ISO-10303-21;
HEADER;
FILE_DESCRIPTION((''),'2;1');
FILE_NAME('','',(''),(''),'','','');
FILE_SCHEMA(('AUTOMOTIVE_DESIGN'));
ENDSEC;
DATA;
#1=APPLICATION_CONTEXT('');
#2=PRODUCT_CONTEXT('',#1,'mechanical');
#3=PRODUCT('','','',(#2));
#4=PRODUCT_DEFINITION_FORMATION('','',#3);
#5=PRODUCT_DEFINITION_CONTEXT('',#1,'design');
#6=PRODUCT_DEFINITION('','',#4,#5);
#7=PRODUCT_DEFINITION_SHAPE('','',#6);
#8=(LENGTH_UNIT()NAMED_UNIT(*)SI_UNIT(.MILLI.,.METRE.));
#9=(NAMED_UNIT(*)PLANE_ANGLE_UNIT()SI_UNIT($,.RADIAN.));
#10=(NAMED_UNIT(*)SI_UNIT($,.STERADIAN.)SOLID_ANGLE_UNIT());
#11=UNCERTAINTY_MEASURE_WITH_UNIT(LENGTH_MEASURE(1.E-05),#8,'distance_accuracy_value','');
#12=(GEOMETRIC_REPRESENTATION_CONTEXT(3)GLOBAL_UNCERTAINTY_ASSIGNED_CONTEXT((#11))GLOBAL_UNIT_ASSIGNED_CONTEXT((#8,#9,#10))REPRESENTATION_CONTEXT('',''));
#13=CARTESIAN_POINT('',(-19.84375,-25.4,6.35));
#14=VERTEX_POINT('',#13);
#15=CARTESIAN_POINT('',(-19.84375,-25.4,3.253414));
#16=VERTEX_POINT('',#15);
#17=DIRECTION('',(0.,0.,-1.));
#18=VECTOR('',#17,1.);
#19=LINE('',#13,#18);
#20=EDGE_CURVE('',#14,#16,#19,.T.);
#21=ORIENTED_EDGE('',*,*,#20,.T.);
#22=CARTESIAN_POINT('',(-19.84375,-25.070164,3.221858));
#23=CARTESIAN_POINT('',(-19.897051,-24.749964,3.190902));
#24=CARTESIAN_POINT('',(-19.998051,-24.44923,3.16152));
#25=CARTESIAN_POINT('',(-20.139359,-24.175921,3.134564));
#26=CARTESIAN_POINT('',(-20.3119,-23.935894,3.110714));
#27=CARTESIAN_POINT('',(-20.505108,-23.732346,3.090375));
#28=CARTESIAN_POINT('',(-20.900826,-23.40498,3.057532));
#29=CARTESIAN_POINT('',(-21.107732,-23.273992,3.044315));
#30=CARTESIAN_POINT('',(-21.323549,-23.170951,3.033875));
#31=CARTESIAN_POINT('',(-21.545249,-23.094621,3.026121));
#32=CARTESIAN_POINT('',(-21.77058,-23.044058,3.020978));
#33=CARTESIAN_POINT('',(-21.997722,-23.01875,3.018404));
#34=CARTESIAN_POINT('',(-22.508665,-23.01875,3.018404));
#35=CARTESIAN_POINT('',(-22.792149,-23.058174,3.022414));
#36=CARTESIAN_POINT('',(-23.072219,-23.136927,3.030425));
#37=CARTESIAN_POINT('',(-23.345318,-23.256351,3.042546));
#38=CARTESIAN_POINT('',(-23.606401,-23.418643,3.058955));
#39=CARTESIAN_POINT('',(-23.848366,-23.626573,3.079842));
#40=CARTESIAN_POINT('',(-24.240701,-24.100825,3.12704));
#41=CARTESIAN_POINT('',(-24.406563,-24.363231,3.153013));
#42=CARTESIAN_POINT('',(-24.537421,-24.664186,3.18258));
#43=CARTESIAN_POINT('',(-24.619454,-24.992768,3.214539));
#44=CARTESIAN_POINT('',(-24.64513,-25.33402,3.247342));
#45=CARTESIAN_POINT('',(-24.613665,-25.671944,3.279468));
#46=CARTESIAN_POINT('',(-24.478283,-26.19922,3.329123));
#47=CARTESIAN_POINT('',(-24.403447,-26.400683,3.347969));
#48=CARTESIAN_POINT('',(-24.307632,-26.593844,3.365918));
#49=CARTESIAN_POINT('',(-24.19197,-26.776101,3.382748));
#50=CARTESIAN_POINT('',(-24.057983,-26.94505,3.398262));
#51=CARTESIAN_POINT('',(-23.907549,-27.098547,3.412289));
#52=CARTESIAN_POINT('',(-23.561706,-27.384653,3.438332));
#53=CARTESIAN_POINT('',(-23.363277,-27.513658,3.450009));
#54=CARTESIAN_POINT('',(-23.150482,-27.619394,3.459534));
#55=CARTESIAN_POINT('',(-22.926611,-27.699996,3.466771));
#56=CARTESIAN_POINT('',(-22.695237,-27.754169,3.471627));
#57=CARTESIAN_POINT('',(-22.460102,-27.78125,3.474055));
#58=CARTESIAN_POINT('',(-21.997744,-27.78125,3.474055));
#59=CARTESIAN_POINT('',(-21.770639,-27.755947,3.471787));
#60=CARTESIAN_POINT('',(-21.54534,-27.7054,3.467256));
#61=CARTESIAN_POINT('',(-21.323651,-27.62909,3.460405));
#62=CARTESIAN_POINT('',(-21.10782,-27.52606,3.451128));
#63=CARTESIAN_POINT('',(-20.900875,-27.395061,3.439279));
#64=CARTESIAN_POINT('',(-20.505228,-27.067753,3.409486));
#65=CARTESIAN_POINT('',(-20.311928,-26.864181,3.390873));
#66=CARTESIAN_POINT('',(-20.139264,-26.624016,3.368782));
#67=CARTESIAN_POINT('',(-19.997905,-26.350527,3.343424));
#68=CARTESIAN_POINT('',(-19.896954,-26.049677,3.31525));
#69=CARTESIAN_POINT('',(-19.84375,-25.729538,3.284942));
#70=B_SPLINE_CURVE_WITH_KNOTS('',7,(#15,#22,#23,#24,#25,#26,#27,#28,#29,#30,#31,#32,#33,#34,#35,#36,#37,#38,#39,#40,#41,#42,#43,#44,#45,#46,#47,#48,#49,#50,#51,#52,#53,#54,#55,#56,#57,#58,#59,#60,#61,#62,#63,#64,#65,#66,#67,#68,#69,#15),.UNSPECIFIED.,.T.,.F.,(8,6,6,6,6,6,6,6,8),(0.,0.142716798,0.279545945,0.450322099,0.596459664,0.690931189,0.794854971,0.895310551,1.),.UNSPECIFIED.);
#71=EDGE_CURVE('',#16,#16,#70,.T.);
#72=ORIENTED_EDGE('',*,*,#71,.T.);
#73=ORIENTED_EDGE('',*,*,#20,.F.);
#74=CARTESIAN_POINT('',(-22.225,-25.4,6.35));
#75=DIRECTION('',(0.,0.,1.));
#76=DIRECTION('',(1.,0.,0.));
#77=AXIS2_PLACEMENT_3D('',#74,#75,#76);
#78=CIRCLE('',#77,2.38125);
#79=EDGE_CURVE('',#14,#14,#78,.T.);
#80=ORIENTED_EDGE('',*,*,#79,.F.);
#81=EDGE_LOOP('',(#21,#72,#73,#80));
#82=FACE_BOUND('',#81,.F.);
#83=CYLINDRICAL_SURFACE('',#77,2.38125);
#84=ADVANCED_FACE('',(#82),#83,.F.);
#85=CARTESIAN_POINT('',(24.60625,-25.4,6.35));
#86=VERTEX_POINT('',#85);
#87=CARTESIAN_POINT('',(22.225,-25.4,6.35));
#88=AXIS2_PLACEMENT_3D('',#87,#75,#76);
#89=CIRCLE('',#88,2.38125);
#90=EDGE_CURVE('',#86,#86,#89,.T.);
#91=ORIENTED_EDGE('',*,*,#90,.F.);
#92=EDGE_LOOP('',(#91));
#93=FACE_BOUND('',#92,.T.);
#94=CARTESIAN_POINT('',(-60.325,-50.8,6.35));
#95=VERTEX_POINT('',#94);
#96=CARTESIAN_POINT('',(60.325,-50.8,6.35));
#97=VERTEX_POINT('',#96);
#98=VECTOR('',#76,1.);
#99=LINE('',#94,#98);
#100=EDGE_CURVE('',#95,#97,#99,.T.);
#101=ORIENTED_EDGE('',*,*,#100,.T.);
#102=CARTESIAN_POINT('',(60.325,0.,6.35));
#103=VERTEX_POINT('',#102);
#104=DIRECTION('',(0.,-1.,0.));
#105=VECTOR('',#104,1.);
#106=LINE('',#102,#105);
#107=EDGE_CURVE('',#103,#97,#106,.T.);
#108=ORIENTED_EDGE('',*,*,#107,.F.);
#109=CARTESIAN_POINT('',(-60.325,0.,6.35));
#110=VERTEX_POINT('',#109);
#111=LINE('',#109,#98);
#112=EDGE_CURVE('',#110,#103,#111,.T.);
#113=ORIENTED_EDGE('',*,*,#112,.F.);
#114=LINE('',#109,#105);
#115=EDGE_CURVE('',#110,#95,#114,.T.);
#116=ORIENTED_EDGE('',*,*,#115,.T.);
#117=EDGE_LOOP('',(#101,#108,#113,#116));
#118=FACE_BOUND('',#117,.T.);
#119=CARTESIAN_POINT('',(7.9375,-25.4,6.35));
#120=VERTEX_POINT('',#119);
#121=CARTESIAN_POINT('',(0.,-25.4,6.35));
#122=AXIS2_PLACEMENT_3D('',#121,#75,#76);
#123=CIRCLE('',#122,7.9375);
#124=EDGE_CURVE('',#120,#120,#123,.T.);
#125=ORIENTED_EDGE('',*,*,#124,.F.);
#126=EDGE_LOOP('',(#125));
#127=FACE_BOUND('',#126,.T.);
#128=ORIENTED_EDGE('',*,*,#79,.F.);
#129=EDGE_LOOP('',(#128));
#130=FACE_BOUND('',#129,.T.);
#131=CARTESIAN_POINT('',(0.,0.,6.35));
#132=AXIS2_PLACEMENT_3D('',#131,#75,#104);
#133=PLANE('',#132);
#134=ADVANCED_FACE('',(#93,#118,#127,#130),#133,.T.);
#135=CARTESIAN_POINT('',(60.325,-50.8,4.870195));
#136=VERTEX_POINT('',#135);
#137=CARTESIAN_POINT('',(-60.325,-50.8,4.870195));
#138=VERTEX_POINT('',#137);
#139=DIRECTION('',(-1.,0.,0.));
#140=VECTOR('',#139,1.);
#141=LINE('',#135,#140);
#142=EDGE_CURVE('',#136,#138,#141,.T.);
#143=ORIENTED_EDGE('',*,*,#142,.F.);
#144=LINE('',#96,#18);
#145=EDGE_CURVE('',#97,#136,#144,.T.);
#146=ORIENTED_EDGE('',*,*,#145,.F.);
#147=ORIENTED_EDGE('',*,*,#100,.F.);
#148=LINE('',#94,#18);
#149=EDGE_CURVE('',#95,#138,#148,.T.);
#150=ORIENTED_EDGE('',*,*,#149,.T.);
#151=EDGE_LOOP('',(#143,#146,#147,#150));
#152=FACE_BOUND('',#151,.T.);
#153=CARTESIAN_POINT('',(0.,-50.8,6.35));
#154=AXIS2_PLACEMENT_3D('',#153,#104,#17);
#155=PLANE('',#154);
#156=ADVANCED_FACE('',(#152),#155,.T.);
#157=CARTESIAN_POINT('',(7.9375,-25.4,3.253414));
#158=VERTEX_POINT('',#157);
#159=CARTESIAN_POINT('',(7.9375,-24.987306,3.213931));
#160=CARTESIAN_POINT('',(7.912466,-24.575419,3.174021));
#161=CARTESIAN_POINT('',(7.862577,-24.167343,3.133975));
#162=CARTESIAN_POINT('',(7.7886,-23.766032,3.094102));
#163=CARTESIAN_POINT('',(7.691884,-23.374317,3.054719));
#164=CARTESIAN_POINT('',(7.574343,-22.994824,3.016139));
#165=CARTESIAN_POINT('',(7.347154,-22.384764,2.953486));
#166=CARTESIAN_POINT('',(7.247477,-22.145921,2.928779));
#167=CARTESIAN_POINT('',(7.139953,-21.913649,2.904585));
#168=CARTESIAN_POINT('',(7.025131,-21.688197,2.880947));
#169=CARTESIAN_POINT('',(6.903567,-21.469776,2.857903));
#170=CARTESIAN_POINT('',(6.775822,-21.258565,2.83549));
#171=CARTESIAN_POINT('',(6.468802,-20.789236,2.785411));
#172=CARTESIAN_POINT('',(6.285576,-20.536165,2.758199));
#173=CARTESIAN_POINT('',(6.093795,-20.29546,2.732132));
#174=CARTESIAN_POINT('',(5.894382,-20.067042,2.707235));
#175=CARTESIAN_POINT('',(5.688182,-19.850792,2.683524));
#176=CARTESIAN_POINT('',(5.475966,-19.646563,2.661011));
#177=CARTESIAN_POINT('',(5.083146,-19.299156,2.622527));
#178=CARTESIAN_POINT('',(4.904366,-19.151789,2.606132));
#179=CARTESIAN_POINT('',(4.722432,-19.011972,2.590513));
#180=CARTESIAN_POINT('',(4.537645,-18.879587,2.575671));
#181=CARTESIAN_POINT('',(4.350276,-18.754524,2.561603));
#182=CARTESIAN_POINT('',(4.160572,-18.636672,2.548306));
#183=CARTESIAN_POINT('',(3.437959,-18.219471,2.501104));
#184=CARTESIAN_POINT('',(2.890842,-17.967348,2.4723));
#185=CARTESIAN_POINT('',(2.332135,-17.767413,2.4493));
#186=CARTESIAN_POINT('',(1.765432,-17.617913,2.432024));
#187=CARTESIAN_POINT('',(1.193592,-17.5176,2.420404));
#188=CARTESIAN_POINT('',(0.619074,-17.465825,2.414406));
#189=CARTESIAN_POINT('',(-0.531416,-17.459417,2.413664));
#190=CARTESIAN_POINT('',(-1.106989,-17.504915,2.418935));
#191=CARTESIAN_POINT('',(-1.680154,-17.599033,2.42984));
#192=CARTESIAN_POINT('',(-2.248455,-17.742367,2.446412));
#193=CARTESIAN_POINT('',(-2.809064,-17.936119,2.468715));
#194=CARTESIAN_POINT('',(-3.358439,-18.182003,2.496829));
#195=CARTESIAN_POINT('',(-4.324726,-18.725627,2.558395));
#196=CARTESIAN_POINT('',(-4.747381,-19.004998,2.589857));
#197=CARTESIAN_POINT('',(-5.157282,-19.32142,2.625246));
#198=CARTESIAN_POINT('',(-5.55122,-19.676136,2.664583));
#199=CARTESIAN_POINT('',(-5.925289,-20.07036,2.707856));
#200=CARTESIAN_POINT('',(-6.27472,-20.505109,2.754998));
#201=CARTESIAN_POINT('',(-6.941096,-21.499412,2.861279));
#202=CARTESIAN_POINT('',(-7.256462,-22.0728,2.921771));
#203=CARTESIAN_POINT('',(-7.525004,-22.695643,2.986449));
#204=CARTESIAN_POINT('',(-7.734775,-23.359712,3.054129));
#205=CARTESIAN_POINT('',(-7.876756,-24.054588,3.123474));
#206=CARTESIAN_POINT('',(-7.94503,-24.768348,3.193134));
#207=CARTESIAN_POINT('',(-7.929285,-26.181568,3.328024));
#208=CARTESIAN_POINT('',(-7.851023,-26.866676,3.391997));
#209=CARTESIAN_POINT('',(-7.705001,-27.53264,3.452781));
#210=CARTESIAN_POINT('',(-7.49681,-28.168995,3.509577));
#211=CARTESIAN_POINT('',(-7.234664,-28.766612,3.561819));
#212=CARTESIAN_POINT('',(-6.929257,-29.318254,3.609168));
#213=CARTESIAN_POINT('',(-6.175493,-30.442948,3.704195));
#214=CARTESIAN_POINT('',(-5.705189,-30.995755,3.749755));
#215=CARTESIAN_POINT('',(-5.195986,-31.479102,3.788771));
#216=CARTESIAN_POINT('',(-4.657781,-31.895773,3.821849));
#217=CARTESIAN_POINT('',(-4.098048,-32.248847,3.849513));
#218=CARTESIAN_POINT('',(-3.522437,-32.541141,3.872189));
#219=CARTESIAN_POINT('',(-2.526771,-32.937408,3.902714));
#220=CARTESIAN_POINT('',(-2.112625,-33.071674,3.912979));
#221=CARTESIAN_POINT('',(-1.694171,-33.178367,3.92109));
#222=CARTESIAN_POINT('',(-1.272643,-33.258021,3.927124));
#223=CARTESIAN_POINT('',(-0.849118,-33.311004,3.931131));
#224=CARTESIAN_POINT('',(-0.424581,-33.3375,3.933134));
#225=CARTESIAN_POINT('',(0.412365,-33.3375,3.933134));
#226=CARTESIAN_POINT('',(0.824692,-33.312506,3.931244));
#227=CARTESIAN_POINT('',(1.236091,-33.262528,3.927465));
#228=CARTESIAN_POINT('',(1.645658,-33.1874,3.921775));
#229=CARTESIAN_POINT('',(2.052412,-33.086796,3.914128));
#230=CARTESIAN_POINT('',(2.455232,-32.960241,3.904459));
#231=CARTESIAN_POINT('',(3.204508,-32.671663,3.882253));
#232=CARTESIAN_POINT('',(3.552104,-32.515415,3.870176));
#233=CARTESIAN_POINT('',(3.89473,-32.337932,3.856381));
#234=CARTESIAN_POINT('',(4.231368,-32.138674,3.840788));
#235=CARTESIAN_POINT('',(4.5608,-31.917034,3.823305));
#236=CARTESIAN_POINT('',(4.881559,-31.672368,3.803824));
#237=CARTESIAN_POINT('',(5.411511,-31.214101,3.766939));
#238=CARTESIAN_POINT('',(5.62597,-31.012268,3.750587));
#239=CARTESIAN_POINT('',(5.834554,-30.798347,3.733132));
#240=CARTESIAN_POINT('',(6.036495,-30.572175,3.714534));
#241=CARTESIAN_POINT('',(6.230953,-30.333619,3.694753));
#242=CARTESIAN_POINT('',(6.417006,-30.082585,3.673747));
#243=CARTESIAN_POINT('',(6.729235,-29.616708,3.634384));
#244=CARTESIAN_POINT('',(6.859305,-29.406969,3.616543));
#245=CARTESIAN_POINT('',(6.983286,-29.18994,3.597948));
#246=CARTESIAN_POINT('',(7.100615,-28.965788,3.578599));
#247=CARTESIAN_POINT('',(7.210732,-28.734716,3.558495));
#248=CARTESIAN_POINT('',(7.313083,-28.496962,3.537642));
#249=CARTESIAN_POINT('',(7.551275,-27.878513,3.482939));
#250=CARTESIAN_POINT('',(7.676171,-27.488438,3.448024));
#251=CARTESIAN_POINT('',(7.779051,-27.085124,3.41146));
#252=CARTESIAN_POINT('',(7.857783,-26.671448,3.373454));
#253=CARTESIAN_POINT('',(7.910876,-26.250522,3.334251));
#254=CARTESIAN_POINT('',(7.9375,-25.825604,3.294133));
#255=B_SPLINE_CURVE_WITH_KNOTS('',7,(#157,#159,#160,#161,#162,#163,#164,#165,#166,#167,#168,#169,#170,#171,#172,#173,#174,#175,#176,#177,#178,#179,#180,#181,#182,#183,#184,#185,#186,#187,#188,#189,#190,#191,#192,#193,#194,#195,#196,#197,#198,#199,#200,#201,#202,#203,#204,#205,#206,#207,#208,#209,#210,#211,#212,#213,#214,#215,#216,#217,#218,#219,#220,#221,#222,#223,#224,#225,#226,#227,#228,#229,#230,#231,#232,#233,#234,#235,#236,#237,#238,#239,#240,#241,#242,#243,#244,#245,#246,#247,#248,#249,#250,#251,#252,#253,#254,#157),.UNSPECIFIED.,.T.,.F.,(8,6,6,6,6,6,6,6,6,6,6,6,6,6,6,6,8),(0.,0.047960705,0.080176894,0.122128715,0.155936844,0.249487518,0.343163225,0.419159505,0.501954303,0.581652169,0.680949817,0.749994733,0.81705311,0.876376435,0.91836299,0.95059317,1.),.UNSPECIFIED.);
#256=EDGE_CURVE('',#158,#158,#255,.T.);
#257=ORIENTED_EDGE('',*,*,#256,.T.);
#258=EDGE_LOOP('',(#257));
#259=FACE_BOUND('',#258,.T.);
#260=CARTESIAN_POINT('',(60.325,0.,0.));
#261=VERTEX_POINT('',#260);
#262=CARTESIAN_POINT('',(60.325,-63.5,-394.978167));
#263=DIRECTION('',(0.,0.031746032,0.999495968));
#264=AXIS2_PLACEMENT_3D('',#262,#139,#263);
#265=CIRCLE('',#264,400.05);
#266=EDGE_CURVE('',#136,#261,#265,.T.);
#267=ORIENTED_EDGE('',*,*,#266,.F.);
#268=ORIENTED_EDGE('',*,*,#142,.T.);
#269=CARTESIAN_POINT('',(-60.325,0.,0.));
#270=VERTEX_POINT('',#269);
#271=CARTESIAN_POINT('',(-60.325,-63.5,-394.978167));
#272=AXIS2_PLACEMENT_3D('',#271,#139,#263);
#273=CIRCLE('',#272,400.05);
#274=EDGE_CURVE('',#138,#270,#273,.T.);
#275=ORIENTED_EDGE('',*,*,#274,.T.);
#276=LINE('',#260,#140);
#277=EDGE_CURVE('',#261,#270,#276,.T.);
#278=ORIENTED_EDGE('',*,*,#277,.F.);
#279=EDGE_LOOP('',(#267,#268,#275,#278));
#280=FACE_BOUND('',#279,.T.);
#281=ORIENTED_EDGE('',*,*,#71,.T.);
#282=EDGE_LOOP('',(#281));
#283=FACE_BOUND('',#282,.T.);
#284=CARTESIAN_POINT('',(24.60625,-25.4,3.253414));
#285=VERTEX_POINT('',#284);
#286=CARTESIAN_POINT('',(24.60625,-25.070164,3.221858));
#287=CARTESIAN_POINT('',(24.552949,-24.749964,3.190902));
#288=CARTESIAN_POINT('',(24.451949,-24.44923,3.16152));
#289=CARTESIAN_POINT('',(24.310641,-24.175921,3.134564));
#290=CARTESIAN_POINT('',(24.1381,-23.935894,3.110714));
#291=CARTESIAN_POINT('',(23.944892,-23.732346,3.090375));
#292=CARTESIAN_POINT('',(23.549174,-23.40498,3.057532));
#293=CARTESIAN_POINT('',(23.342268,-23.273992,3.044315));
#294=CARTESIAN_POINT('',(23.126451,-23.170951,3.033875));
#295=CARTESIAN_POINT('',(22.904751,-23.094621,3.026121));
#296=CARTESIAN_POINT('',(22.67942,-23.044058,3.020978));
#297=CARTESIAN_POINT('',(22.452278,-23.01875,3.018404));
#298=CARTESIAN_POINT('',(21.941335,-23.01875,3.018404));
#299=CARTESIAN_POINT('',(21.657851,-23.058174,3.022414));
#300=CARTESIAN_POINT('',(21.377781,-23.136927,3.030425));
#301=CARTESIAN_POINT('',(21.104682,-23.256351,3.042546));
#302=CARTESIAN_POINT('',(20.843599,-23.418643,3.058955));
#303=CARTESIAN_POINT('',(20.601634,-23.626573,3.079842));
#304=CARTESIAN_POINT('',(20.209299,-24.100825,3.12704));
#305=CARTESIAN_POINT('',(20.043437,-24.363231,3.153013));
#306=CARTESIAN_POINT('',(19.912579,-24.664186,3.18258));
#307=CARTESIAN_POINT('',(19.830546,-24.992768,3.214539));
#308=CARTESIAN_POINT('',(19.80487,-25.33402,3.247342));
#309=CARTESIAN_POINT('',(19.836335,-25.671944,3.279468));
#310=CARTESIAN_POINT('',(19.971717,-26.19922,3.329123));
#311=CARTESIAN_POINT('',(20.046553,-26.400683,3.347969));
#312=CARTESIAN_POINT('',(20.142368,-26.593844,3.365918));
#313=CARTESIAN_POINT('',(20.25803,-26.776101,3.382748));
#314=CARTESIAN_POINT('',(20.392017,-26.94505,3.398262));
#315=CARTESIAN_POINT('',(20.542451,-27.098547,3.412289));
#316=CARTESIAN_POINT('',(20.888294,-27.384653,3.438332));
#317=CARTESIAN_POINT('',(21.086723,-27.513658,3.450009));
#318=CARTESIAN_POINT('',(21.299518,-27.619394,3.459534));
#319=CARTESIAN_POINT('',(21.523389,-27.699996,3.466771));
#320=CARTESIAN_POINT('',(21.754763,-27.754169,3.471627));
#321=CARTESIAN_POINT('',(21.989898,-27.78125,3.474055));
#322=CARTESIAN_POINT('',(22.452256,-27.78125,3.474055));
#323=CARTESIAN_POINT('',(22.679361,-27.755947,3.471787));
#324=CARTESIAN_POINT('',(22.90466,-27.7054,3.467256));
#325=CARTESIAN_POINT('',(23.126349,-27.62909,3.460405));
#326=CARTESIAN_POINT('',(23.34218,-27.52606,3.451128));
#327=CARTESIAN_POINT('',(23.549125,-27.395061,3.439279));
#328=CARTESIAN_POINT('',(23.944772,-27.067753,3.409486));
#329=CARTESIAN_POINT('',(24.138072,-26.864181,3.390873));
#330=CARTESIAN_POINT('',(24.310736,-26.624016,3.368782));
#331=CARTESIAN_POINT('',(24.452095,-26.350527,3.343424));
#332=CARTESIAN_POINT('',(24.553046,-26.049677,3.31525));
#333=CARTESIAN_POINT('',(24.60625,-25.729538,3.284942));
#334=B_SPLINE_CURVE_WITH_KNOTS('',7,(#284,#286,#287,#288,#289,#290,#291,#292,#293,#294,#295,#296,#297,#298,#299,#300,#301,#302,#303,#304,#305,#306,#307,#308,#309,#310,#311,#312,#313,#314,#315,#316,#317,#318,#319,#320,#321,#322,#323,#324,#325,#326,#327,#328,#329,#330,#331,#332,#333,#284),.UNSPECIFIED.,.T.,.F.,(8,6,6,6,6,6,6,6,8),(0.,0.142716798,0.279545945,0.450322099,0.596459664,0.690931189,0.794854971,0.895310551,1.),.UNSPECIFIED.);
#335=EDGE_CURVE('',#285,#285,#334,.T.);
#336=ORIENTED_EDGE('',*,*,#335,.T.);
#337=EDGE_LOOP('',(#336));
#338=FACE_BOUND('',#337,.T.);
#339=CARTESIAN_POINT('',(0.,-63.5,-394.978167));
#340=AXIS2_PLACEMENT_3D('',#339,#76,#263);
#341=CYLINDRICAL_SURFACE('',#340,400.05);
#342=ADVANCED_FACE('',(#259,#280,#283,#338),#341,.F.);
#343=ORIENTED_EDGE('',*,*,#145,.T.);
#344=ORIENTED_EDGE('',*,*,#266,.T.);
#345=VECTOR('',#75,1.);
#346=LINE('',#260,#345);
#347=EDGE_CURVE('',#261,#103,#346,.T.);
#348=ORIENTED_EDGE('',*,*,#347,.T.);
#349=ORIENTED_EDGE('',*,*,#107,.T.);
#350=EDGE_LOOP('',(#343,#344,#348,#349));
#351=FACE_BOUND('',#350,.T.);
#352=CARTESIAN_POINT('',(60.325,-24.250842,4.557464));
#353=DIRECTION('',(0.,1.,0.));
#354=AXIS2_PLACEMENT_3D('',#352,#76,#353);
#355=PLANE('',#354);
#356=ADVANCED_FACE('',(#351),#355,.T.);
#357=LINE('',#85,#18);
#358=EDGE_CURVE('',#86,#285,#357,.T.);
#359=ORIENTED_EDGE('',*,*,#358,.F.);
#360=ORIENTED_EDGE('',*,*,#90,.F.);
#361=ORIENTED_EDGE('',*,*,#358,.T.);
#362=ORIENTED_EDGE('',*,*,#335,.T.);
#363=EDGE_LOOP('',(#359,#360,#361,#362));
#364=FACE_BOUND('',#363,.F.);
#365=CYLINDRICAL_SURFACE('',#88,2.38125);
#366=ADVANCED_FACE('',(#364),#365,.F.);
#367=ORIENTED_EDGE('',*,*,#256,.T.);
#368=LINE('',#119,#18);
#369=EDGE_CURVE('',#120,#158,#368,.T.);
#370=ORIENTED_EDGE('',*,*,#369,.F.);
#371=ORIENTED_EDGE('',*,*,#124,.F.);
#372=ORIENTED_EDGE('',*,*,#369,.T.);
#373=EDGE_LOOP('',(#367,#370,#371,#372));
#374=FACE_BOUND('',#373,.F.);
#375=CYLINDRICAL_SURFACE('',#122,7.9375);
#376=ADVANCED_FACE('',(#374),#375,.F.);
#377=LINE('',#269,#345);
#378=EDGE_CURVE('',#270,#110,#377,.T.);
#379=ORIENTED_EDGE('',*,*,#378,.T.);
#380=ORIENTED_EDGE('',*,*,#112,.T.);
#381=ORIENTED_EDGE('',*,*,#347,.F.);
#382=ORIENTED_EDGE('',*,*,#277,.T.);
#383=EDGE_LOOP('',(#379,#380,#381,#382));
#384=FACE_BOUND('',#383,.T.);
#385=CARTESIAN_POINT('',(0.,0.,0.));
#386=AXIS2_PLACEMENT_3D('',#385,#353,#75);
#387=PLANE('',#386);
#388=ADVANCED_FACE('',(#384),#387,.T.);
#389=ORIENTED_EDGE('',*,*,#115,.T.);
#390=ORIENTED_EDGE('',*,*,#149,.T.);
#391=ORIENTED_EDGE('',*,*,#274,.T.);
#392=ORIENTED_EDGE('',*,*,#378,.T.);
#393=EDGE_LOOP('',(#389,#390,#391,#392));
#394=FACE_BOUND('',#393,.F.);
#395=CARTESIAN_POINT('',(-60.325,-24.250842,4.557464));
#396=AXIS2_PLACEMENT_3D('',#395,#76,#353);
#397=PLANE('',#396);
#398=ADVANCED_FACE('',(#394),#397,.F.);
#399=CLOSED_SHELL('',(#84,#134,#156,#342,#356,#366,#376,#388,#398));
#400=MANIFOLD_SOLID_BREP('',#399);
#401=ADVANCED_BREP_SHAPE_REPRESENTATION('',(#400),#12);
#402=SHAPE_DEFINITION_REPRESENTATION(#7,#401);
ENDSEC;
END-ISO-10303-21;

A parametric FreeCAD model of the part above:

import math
import FreeCAD as App
import Part
import Sketcher

V = App.Vector
Q = App.Units.Quantity

doc = App.newDocument("Part")
params = doc.addObject("Spreadsheet::Sheet", "Params")
for row, (alias, value) in enumerate([
    ("sketch1_width", "2 in"),
    ("sketch1_radius", "15.75 in"),
    ("sketch1_height", "0.25 in"),
    ("pad1_length", "4.75 in"),
    ("sketch2_diameter", "0.625 in"),
    ("sketch2_diameter2", "0.1875 in"),
    ("pocket1_length", "4.935979 mm"),
], start=1):
    params.set(f"A{row}", alias)
    params.set(f"B{row}", "=" + value)
    params.setAlias(f"B{row}", alias)

body = doc.addObject("PartDesign::Body", "Body")

sketch1 = body.newObject("Sketcher::SketchObject", "Sketch")
sketch1.AttachmentSupport = (doc.getObject("YZ_Plane"), [""])
sketch1.MapMode = "FlatFace"
sketch1.addGeometry([
    Part.LineSegment(V(0, 0, 0), V(0, 6.3, 0)),
    Part.LineSegment(V(0, 6.3, 0), V(-50.8, 6.3, 0)),
    Part.LineSegment(V(-50.8, 6.3, 0), V(-50.8, 4.9, 0)),
    Part.ArcOfCircle(Part.Circle(V(-63.5, -395, 0), V(0, 0, 1), 400.1), math.radians(80.87), math.radians(88.18)),
], False)
sketch1.addConstraint([
    Sketcher.Constraint("Coincident", 0, 2, 1, 1),
    Sketcher.Constraint("Coincident", 1, 2, 2, 1),
    Sketcher.Constraint("Coincident", 2, 2, 3, 2),
    Sketcher.Constraint("Coincident", 3, 1, 0, 1),
    Sketcher.Constraint("Vertical", 0),
    Sketcher.Constraint("Horizontal", 1),
    Sketcher.Constraint("Vertical", 2),
    Sketcher.Constraint("PointOnObject", 0, 2, -2),
    Sketcher.Constraint("DistanceX", 1, 2, 1, 1, Q("2 in")),
    Sketcher.Constraint("Radius", 3, Q("15.75 in")),
    Sketcher.Constraint("DistanceY", 0, 1, 0, 2, Q("0.25 in")),
    Sketcher.Constraint("DistanceX", 3, 3, -1, 1, Q("2.5 in")),
    Sketcher.Constraint("DistanceY", -1, 1, 0, 2, Q("0.25 in")),
])
sketch1.setExpression("Constraints[8]", "Params.sketch1_width")
sketch1.setExpression("Constraints[9]", "Params.sketch1_radius")
sketch1.setExpression("Constraints[10]", "Params.sketch1_height")
pad1 = body.newObject("PartDesign::Pad", "Pad")
pad1.Profile = sketch1
pad1.setExpression("Length", "Params.pad1_length")
pad1.Midplane = True

sketch2 = body.newObject("Sketcher::SketchObject", "Sketch001")
sketch2.AttachmentSupport = (doc.getObject("XY_Plane"), [""])
sketch2.MapMode = "FlatFace"
sketch2.AttachmentOffset = App.Placement(V(0, 0, 0.25 * 25.4), App.Rotation())
sketch2.addGeometry([
    Part.Circle(V(0, -25.4, 0), V(0, 0, 1), 7.9),
    Part.Circle(V(-22.2, -25.4, 0), V(0, 0, 1), 2.4),
    Part.Circle(V(22.2, -25.4, 0), V(0, 0, 1), 2.4),
], False)
sketch2.addConstraint([
    Sketcher.Constraint("Equal", 1, 2),
    Sketcher.Constraint("Symmetric", 1, 3, 2, 3, -2),
    Sketcher.Constraint("PointOnObject", 0, 3, -2),
    Sketcher.Constraint("Horizontal", 0, 3, 1, 3),
    Sketcher.Constraint("Diameter", 0, Q("0.625 in")),
    Sketcher.Constraint("Diameter", 1, Q("0.1875 in")),
    Sketcher.Constraint("DistanceY", 0, 3, -1, 1, Q("1 in")),
    Sketcher.Constraint("DistanceX", 1, 3, 2, 3, Q("1.75 in")),
])
sketch2.setExpression("Constraints[4]", "Params.sketch2_diameter")
sketch2.setExpression("Constraints[5]", "Params.sketch2_diameter2")
pocket1 = body.newObject("PartDesign::Pocket", "Pocket")
pocket1.Profile = sketch2
pocket1.setExpression("Length", "Params.pocket1_length")

doc.recompute()
